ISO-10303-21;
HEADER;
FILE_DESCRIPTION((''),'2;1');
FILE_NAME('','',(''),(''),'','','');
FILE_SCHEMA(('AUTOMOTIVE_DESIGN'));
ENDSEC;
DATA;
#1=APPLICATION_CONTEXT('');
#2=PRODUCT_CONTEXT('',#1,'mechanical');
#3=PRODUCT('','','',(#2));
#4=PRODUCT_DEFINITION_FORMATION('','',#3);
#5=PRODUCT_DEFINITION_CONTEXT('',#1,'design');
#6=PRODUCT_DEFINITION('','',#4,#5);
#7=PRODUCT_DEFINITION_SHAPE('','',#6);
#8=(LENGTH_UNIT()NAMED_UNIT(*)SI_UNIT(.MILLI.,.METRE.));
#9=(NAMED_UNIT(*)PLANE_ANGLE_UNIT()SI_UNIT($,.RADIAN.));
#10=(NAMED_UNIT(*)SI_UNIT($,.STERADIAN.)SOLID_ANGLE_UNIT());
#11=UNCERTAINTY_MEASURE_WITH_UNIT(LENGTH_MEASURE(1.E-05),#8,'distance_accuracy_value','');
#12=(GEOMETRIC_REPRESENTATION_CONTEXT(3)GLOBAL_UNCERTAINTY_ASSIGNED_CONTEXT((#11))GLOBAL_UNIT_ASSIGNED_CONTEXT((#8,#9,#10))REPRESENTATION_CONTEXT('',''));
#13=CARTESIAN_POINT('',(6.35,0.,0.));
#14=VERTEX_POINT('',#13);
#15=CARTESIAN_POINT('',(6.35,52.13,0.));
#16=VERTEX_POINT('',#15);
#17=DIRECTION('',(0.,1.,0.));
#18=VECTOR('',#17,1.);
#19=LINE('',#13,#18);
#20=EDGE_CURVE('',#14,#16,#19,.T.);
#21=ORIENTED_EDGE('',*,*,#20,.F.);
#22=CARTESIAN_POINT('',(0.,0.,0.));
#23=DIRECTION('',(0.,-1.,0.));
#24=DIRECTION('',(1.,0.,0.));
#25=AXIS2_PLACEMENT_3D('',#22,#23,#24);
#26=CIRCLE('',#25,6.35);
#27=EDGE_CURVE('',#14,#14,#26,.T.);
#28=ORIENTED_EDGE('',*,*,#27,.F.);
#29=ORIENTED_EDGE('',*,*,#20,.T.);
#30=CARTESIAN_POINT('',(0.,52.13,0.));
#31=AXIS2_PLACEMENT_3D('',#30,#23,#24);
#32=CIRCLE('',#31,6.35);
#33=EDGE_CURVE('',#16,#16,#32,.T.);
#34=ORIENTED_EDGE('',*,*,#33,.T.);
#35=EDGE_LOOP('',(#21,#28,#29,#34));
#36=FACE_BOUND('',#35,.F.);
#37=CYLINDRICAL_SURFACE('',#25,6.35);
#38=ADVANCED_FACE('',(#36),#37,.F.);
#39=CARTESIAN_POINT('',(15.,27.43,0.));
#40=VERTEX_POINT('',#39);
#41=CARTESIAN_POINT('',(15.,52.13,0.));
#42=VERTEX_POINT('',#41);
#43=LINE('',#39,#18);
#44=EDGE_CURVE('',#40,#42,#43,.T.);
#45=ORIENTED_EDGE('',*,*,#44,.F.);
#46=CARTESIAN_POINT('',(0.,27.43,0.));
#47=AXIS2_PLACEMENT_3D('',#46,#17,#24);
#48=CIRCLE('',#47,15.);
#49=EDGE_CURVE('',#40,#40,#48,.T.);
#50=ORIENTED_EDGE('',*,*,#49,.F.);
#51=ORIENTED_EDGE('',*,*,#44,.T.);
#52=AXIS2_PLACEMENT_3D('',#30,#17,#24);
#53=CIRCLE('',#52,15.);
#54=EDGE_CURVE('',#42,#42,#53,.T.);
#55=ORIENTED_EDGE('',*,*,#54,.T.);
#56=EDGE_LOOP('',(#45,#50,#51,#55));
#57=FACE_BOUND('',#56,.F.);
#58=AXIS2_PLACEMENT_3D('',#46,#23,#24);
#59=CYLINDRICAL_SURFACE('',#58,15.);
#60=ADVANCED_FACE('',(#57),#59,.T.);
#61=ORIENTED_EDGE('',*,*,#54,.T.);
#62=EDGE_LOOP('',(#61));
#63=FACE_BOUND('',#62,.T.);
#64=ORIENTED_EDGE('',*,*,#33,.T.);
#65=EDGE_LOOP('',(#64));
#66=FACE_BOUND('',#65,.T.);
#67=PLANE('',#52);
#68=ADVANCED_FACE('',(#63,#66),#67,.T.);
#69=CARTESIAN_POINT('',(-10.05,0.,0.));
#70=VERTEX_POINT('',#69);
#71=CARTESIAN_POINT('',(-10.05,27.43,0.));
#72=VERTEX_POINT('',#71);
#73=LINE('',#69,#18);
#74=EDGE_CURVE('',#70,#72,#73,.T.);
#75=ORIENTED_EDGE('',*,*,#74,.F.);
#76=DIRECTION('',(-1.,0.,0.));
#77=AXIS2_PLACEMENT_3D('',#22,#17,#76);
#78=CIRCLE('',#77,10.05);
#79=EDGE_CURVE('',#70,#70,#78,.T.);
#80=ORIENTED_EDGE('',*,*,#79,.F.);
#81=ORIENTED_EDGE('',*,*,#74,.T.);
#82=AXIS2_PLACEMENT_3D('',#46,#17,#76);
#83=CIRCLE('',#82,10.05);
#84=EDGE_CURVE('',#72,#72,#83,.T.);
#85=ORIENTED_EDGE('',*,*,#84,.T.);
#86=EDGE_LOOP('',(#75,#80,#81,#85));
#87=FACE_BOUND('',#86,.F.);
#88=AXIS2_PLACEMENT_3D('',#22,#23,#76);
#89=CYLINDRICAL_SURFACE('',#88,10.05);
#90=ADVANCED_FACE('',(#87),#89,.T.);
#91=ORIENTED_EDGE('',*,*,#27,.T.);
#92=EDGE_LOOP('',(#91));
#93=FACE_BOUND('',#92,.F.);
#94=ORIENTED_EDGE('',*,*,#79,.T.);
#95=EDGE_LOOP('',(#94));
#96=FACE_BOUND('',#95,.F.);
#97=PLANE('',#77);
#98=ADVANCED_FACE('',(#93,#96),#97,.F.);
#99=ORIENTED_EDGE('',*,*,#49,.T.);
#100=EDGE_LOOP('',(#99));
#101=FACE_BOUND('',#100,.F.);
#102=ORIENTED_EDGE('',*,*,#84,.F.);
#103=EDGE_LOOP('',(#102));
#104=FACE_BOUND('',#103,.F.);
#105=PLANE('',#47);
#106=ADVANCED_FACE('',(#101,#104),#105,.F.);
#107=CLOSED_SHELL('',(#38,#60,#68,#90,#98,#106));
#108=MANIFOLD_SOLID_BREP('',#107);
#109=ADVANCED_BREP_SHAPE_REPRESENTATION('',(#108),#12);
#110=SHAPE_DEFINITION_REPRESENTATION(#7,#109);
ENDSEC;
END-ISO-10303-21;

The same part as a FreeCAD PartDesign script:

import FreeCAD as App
import Part
import Sketcher

V = App.Vector

doc = App.newDocument("Part")
body = doc.addObject("PartDesign::Body", "Body")

sketch1 = body.newObject("Sketcher::SketchObject", "Sketch")
sketch1.AttachmentSupport = (doc.getObject("XZ_Plane"), [""])
sketch1.MapMode = "FlatFace"
sketch1.addGeometry(Part.Circle(V(0, 0, 0), V(0, 0, 1), 10.05), False)
sketch1.addConstraint([
    Sketcher.Constraint("Coincident", 0, 3, -1, 1),
    Sketcher.Constraint("Diameter", 0, 20.1),
])
pad1 = body.newObject("PartDesign::Pad", "Pad")
pad1.Profile = sketch1
pad1.Length = 27.43
pad1.Reversed = True

sketch2 = body.newObject("Sketcher::SketchObject", "Sketch001")
sketch2.AttachmentSupport = (doc.getObject("XZ_Plane"), [""])
sketch2.MapMode = "FlatFace"
sketch2.AttachmentOffset = App.Placement(V(0, 0, -27.43), App.Rotation())
sketch2.addGeometry(Part.Circle(V(0, 0, 0), V(0, 0, 1), 15), False)
sketch2.addConstraint([
    Sketcher.Constraint("Coincident", 0, 3, -1, 1),
    Sketcher.Constraint("Diameter", 0, 30.0),
])
pad2 = body.newObject("PartDesign::Pad", "Pad001")
pad2.Profile = sketch2
pad2.Length = 24.7
pad2.Reversed = True

sketch3 = body.newObject("Sketcher::SketchObject", "Sketch002")
sketch3.AttachmentSupport = (doc.getObject("XZ_Plane"), [""])
sketch3.MapMode = "FlatFace"
sketch3.addGeometry(Part.Circle(V(0, 0, 0), V(0, 0, 1), 6.35), False)
sketch3.addConstraint([
    Sketcher.Constraint("Coincident", 0, 3, -1, 1),
    Sketcher.Constraint("Diameter", 0, 12.7),
])
pocket1 = body.newObject("PartDesign::Pocket", "Pocket")
pocket1.Profile = sketch3
pocket1.Length = 53

doc.recompute()
